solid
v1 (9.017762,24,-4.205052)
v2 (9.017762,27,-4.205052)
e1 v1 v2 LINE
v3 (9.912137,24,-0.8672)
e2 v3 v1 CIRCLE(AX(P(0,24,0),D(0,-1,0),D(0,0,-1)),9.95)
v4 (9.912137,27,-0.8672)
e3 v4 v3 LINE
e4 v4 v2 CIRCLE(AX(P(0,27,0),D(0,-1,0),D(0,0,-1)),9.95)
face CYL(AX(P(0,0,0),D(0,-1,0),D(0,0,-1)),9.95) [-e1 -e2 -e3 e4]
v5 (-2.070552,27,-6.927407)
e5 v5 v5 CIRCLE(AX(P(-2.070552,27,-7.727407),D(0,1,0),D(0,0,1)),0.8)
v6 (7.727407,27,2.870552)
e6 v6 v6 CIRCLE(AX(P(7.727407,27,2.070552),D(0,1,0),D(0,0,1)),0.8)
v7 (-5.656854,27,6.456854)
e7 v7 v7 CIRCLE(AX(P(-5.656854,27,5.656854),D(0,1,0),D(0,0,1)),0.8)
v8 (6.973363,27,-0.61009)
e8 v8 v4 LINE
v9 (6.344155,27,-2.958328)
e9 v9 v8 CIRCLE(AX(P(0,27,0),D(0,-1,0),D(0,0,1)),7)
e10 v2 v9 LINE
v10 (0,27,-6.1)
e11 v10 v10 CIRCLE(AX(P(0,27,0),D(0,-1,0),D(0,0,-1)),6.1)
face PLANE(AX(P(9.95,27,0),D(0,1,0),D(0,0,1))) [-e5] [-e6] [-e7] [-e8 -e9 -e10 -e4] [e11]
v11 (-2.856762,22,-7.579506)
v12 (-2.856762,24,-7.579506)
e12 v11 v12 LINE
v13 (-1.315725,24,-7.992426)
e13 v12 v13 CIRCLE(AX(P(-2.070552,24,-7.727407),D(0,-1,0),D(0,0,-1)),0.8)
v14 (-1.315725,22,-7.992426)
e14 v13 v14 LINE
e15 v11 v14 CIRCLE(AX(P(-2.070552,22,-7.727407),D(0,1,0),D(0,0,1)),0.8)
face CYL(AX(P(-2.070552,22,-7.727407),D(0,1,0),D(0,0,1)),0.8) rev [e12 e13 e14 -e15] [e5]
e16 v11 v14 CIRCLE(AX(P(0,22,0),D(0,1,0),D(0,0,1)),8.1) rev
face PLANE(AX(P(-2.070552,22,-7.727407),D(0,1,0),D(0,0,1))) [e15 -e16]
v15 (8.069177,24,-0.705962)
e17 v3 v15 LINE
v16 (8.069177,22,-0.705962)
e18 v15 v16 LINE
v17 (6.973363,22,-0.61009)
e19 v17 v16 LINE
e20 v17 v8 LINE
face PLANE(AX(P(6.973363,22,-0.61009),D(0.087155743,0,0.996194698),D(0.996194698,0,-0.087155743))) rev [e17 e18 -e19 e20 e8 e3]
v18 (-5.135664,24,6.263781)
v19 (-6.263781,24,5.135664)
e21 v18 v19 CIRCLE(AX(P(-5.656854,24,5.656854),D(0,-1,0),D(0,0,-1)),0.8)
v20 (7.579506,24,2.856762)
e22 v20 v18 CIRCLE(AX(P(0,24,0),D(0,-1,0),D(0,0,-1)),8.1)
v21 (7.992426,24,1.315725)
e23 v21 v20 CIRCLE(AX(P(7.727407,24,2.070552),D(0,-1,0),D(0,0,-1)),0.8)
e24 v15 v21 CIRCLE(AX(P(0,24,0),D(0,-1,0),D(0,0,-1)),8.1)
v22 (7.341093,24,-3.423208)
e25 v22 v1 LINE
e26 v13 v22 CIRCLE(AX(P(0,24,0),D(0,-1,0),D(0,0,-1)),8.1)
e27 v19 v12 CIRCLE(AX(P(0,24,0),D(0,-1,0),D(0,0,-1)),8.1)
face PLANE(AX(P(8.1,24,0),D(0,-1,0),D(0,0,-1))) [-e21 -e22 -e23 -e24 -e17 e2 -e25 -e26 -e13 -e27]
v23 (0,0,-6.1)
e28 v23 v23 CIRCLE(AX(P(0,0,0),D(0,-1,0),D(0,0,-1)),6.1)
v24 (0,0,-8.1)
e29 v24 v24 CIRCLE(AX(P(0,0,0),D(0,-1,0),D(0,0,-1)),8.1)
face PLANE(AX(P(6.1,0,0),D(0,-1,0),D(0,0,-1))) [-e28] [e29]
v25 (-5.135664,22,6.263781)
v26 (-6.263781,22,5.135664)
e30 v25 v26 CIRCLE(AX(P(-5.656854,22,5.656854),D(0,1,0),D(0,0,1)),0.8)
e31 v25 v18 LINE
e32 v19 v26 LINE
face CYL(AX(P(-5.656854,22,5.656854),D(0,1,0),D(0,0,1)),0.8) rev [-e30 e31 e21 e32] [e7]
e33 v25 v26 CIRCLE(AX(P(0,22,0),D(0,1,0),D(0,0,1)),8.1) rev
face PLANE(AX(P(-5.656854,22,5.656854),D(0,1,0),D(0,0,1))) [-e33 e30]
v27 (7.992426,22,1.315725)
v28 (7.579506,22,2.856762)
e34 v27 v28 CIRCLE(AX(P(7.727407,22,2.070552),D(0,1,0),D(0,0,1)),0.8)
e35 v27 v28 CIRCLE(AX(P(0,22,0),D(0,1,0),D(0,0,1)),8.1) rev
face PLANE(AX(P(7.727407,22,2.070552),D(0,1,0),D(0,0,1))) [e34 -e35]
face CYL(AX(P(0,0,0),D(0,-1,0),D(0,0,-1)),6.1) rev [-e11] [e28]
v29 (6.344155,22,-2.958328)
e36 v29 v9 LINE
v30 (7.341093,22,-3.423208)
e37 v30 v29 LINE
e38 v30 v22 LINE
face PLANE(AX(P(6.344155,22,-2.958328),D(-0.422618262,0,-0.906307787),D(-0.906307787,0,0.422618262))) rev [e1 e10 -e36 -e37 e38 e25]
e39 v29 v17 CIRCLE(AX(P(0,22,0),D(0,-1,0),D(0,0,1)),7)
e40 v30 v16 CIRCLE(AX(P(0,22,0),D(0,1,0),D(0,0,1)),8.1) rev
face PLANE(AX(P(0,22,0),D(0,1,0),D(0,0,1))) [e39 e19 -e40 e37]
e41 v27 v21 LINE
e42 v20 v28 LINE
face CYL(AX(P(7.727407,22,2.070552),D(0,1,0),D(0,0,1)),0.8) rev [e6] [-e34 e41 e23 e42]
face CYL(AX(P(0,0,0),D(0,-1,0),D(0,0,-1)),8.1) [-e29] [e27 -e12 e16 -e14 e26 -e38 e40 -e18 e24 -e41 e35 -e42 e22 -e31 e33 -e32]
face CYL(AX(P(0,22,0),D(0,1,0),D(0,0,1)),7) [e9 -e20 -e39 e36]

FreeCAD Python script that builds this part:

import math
import FreeCAD as App
import Part
import Sketcher
from FreeCAD import Vector
Q = App.Units.Quantity

doc = App.newDocument("Part")
body = doc.addObject("PartDesign::Body", "Body")

# Sketch on XY plane
sketch1 = body.newObject("Sketcher::SketchObject", "Sketch")
sketch1.AttachmentSupport = (doc.getObject("XY_Plane"), [""])
sketch1.MapMode = "FlatFace"
sketch1.addGeometry(Part.LineSegment(Vector(6.1, 0, 0), Vector(8.1, 0, 0)), False)
sketch1.addGeometry(Part.LineSegment(Vector(8.1, 0, 0), Vector(8.1, 24, 0)), False)
sketch1.addGeometry(Part.LineSegment(Vector(8.1, 24, 0), Vector(9.9, 24, 0)), False)
sketch1.addGeometry(Part.LineSegment(Vector(9.9, 24, 0), Vector(9.9, 27, 0)), False)
sketch1.addGeometry(Part.LineSegment(Vector(9.9, 27, 0), Vector(6.1, 27, 0)), False)
sketch1.addGeometry(Part.LineSegment(Vector(6.1, 27, 0), Vector(6.1, 0, 0)), False)
sketch1.addConstraint(Sketcher.Constraint("Coincident", 0, 2, 1, 1))
sketch1.addConstraint(Sketcher.Constraint("Coincident", 1, 2, 2, 1))
sketch1.addConstraint(Sketcher.Constraint("Coincident", 2, 2, 3, 1))
sketch1.addConstraint(Sketcher.Constraint("Coincident", 3, 2, 4, 1))
sketch1.addConstraint(Sketcher.Constraint("Coincident", 4, 2, 5, 1))
sketch1.addConstraint(Sketcher.Constraint("Coincident", 5, 2, 0, 1))
sketch1.addConstraint(Sketcher.Constraint("Horizontal", 0))
sketch1.addConstraint(Sketcher.Constraint("Vertical", 1))
sketch1.addConstraint(Sketcher.Constraint("Horizontal", 2))
sketch1.addConstraint(Sketcher.Constraint("Vertical", 3))
sketch1.addConstraint(Sketcher.Constraint("Horizontal", 4))
sketch1.addConstraint(Sketcher.Constraint("Vertical", 5))
sketch1.addConstraint(Sketcher.Constraint("PointOnObject", 0, 2, -1))
sketch1.addConstraint(Sketcher.Constraint("DistanceX", 0, 1, 0, 2, Q("2 mm")))
sketch1.addConstraint(Sketcher.Constraint("DistanceY", 1, 1, 1, 2, Q("24 mm")))
sketch1.addConstraint(Sketcher.Constraint("DistanceY", 3, 1, 3, 2, Q("3 mm")))
sketch1.addConstraint(Sketcher.Constraint("DistanceX", 2, 1, 2, 2, Q("1.85 mm")))
sketch1.addConstraint(Sketcher.Constraint("DistanceX", -1, 1, 0, 2, Q("8.1 mm")))
revolution = body.newObject("PartDesign::Revolution", "Revolution")
revolution.Profile = sketch1
revolution.ReferenceAxis = (sketch1, ["V_Axis"])
revolution.Angle = 360

# Sketch on XZ plane
sketch2 = body.newObject("Sketcher::SketchObject", "Sketch001")
sketch2.AttachmentSupport = (doc.getObject("XZ_Plane"), [""])
sketch2.MapMode = "FlatFace"
sketch2.AttachmentOffset = App.Placement(Vector(0, 0, -27), App.Rotation())
sketch2.addGeometry(Part.Circle(Vector(7.7, 2.1, 0), Vector(0, 0, 1), 0.8), False)
sketch2.addGeometry(Part.Circle(Vector(-5.7, 5.7, 0), Vector(0, 0, 1), 0.8), False)
sketch2.addGeometry(Part.Circle(Vector(-2.1, -7.7, 0), Vector(0, 0, 1), 0.8), False)
sketch2.addGeometry(Part.LineSegment(Vector(9.1, -4.2, 0), Vector(6.3, -3, 0)), False)
sketch2.addGeometry(Part.ArcOfCircle(Part.Circle(Vector(0, 0, 0), Vector(0, 0, 1), 7), math.radians(-25), math.radians(-5)), False)
sketch2.addGeometry(Part.LineSegment(Vector(7, -0.6, 0), Vector(10, -0.9, 0)), False)
sketch2.addGeometry(Part.ArcOfCircle(Part.Circle(Vector(0, 0, 0), Vector(0, 0, 1), 10), math.radians(-25), math.radians(-5)), False)
sketch2.addConstraint(Sketcher.Constraint("Coincident", 3, 2, 4, 1))
sketch2.addConstraint(Sketcher.Constraint("Coincident", 4, 2, 5, 1))
sketch2.addConstraint(Sketcher.Constraint("Coincident", 5, 2, 6, 2))
sketch2.addConstraint(Sketcher.Constraint("Coincident", 6, 1, 3, 1))
sketch2.addConstraint(Sketcher.Constraint("Coincident", 4, 3, -1, 1))
sketch2.addConstraint(Sketcher.Constraint("Coincident", 6, 3, -1, 1))
sketch2.addConstraint(Sketcher.Constraint("Equal", 0, 1))
sketch2.addConstraint(Sketcher.Constraint("Equal", 1, 2))
sketch2.addConstraint(Sketcher.Constraint("Radius", 4, Q("7 mm")))
sketch2.addConstraint(Sketcher.Constraint("Radius", 6, Q("10 mm")))
sketch2.addConstraint(Sketcher.Constraint("Diameter", 0, Q("1.6 mm")))
sketch2.addConstraint(Sketcher.Constraint("Angle", 3, Q("155 deg")))
sketch2.addConstraint(Sketcher.Constraint("Angle", 5, Q("-5 deg")))
sketch2.addConstraint(Sketcher.Constraint("DistanceY", 0, 3, 1, 3, Q("3.586302 mm")))
sketch2.addConstraint(Sketcher.Constraint("DistanceX", 1, 3, 2, 3, Q("3.586302 mm")))
sketch2.addConstraint(Sketcher.Constraint("DistanceY", 4, 2, -1, 1, Q("0.61009 mm")))
sketch2.addConstraint(Sketcher.Constraint("DistanceX", 1, 3, 0, 3, Q("13.384261 mm")))
sketch2.addConstraint(Sketcher.Constraint("DistanceY", 2, 3, 1, 3, Q("13.384261 mm")))
sketch2.addConstraint(Sketcher.Constraint("DistanceY", 3, 2, 0, 3, Q("5.02888 mm")))
sketch2.addConstraint(Sketcher.Constraint("DistanceX", 1, 3, 3, 2, Q("12.001009 mm")))
sketch2.addConstraint(Sketcher.Constraint("DistanceX", 3, 2, 4, 2, Q("0.629208 mm")))
pocket1 = body.newObject("PartDesign::Pocket", "Pocket")
pocket1.Profile = sketch2
pocket1.Length = 5
pocket1.Reversed = True

doc.recompute()
